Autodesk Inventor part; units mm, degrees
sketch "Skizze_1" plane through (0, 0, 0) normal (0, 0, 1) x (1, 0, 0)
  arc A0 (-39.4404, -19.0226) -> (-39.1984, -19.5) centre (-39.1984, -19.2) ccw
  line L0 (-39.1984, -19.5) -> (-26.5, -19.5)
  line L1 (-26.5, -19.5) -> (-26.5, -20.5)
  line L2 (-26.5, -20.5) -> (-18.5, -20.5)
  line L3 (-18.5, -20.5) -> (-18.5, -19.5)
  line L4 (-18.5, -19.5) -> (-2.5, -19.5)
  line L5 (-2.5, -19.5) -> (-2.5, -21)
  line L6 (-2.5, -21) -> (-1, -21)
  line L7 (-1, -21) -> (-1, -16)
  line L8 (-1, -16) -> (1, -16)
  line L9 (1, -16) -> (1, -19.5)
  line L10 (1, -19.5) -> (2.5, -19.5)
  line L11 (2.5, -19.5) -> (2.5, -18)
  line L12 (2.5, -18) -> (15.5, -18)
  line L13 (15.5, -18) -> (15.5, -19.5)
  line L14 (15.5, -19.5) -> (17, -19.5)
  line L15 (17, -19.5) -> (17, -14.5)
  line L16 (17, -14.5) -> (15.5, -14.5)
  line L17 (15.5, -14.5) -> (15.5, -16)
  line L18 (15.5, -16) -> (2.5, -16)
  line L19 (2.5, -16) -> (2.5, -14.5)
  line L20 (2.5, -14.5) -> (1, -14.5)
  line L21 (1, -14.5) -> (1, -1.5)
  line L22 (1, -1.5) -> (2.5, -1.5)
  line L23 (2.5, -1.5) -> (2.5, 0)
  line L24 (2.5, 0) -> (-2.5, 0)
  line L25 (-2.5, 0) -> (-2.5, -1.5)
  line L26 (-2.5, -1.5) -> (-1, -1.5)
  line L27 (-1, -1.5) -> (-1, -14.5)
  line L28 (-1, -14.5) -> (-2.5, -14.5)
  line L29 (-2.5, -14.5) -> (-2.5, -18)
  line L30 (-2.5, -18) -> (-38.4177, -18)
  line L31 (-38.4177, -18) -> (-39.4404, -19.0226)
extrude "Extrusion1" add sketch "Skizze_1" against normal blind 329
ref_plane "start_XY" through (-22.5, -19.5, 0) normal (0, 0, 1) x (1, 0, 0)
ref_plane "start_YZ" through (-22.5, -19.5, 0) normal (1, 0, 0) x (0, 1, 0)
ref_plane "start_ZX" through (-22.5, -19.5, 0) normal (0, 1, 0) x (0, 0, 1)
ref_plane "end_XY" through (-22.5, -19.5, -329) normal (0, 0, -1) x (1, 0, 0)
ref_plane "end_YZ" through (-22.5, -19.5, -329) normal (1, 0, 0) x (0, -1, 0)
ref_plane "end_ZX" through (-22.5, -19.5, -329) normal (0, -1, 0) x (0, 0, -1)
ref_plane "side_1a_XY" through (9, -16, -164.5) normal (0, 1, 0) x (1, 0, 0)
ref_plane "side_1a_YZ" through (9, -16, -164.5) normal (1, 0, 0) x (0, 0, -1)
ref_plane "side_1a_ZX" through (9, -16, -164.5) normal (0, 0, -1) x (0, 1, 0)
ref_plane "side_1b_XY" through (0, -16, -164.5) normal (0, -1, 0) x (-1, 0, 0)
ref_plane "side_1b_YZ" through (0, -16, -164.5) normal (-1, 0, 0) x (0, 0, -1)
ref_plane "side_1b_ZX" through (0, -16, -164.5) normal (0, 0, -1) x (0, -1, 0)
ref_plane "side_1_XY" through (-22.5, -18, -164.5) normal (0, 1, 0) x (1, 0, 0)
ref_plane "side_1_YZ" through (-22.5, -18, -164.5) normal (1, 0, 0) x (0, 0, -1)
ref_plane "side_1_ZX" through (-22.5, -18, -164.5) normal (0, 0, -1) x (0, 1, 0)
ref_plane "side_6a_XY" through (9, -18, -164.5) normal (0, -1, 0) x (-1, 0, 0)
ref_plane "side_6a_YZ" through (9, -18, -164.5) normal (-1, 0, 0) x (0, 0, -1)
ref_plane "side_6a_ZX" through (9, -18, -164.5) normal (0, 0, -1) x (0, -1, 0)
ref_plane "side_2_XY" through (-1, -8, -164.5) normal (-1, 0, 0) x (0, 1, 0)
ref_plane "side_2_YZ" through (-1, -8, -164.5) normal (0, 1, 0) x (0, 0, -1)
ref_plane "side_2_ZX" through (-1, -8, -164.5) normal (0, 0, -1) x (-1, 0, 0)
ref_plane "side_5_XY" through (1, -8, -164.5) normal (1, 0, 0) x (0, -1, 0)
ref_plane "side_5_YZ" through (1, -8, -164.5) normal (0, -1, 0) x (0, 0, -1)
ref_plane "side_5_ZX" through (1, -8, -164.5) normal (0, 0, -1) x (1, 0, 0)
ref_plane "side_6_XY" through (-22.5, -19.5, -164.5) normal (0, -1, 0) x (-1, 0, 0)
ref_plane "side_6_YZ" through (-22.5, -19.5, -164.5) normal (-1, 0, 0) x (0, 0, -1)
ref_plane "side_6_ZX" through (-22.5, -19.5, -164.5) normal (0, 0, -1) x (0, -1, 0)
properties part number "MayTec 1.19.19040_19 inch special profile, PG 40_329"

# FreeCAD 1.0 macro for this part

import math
import FreeCAD as App
import Part
import Sketcher
from FreeCAD import Vector

doc = App.newDocument("Part")
body = doc.addObject("PartDesign::Body", "Body")

# Sketch on XY plane
sketch1 = body.newObject("Sketcher::SketchObject", "Sketch")
sketch1.AttachmentSupport = (doc.getObject("XY_Plane"), [""])
sketch1.MapMode = "FlatFace"
sketch1.addGeometry(Part.LineSegment(Vector(-38.42, -18, 0), Vector(-39.44, -19.02, 0)), False)
sketch1.addGeometry(Part.ArcOfCircle(Part.Circle(Vector(-39.2, -19.2, 0), Vector(0, 0, 1), 0.3), math.radians(144), math.radians(270)), False)
sketch1.addGeometry(Part.LineSegment(Vector(-39.2, -19.5, 0), Vector(-26.5, -19.5, 0)), False)
sketch1.addGeometry(Part.LineSegment(Vector(-26.5, -19.5, 0), Vector(-26.5, -20.5, 0)), False)
sketch1.addGeometry(Part.LineSegment(Vector(-26.5, -20.5, 0), Vector(-18.5, -20.5, 0)), False)
sketch1.addGeometry(Part.LineSegment(Vector(-18.5, -20.5, 0), Vector(-18.5, -19.5, 0)), False)
sketch1.addGeometry(Part.LineSegment(Vector(-18.5, -19.5, 0), Vector(-2.5, -19.5, 0)), False)
sketch1.addGeometry(Part.LineSegment(Vector(-2.5, -19.5, 0), Vector(-2.5, -21, 0)), False)
sketch1.addGeometry(Part.LineSegment(Vector(-2.5, -21, 0), Vector(-1, -21, 0)), False)
sketch1.addGeometry(Part.LineSegment(Vector(-1, -21, 0), Vector(-1, -16, 0)), False)
sketch1.addGeometry(Part.LineSegment(Vector(-1, -16, 0), Vector(1, -16, 0)), False)
sketch1.addGeometry(Part.LineSegment(Vector(1, -16, 0), Vector(1, -19.5, 0)), False)
sketch1.addGeometry(Part.LineSegment(Vector(1, -19.5, 0), Vector(2.5, -19.5, 0)), False)
sketch1.addGeometry(Part.LineSegment(Vector(2.5, -19.5, 0), Vector(2.5, -18, 0)), False)
sketch1.addGeometry(Part.LineSegment(Vector(2.5, -18, 0), Vector(15.5, -18, 0)), False)
sketch1.addGeometry(Part.LineSegment(Vector(15.5, -18, 0), Vector(15.5, -19.5, 0)), False)
sketch1.addGeometry(Part.LineSegment(Vector(15.5, -19.5, 0), Vector(17, -19.5, 0)), False)
sketch1.addGeometry(Part.LineSegment(Vector(17, -19.5, 0), Vector(17, -14.5, 0)), False)
sketch1.addGeometry(Part.LineSegment(Vector(17, -14.5, 0), Vector(15.5, -14.5, 0)), False)
sketch1.addGeometry(Part.LineSegment(Vector(15.5, -14.5, 0), Vector(15.5, -16, 0)), False)
sketch1.addGeometry(Part.LineSegment(Vector(15.5, -16, 0), Vector(2.5, -16, 0)), False)
sketch1.addGeometry(Part.LineSegment(Vector(2.5, -16, 0), Vector(2.5, -14.5, 0)), False)
sketch1.addGeometry(Part.LineSegment(Vector(2.5, -14.5, 0), Vector(1, -14.5, 0)), False)
sketch1.addGeometry(Part.LineSegment(Vector(1, -14.5, 0), Vector(1, -1.5, 0)), False)
sketch1.addGeometry(Part.LineSegment(Vector(1, -1.5, 0), Vector(2.5, -1.5, 0)), False)
sketch1.addGeometry(Part.LineSegment(Vector(2.5, -1.5, 0), Vector(2.5, 0, 0)), False)
sketch1.addGeometry(Part.LineSegment(Vector(2.5, 0, 0), Vector(-2.5, 0, 0)), False)
sketch1.addGeometry(Part.LineSegment(Vector(-2.5, 0, 0), Vector(-2.5, -1.5, 0)), False)
sketch1.addGeometry(Part.LineSegment(Vector(-2.5, -1.5, 0), Vector(-1, -1.5, 0)), False)
sketch1.addGeometry(Part.LineSegment(Vector(-1, -1.5, 0), Vector(-1, -14.5, 0)), False)
sketch1.addGeometry(Part.LineSegment(Vector(-1, -14.5, 0), Vector(-2.5, -14.5, 0)), False)
sketch1.addGeometry(Part.LineSegment(Vector(-2.5, -14.5, 0), Vector(-2.5, -18, 0)), False)
sketch1.addGeometry(Part.LineSegment(Vector(-2.5, -18, 0), Vector(-38.42, -18, 0)), False)
sketch1.addConstraint(Sketcher.Constraint("Coincident", 0, 2, 1, 1))
sketch1.addConstraint(Sketcher.Constraint("Tangent", 1, 2, 2, 1))
sketch1.addConstraint(Sketcher.Constraint("Coincident", 2, 2, 3, 1))
sketch1.addConstraint(Sketcher.Constraint("Coincident", 3, 2, 4, 1))
sketch1.addConstraint(Sketcher.Constraint("Coincident", 4, 2, 5, 1))
sketch1.addConstraint(Sketcher.Constraint("Coincident", 5, 2, 6, 1))
sketch1.addConstraint(Sketcher.Constraint("Coincident", 6, 2, 7, 1))
sketch1.addConstraint(Sketcher.Constraint("Coincident", 7, 2, 8, 1))
sketch1.addConstraint(Sketcher.Constraint("Coincident", 8, 2, 9, 1))
sketch1.addConstraint(Sketcher.Constraint("Coincident", 9, 2, 10, 1))
sketch1.addConstraint(Sketcher.Constraint("Coincident", 10, 2, 11, 1))
sketch1.addConstraint(Sketcher.Constraint("Coincident", 11, 2, 12, 1))
sketch1.addConstraint(Sketcher.Constraint("Coincident", 12, 2, 13, 1))
sketch1.addConstraint(Sketcher.Constraint("Coincident", 13, 2, 14, 1))
sketch1.addConstraint(Sketcher.Constraint("Coincident", 14, 2, 15, 1))
sketch1.addConstraint(Sketcher.Constraint("Coincident", 15, 2, 16, 1))
sketch1.addConstraint(Sketcher.Constraint("Coincident", 16, 2, 17, 1))
sketch1.addConstraint(Sketcher.Constraint("Coincident", 17, 2, 18, 1))
sketch1.addConstraint(Sketcher.Constraint("Coincident", 18, 2, 19, 1))
sketch1.addConstraint(Sketcher.Constraint("Coincident", 19, 2, 20, 1))
sketch1.addConstraint(Sketcher.Constraint("Coincident", 20, 2, 21, 1))
sketch1.addConstraint(Sketcher.Constraint("Coincident", 21, 2, 22, 1))
sketch1.addConstraint(Sketcher.Constraint("Coincident", 22, 2, 23, 1))
sketch1.addConstraint(Sketcher.Constraint("Coincident", 23, 2, 24, 1))
sketch1.addConstraint(Sketcher.Constraint("Coincident", 24, 2, 25, 1))
sketch1.addConstraint(Sketcher.Constraint("Coincident", 25, 2, 26, 1))
sketch1.addConstraint(Sketcher.Constraint("Coincident", 26, 2, 27, 1))
sketch1.addConstraint(Sketcher.Constraint("Coincident", 27, 2, 28, 1))
sketch1.addConstraint(Sketcher.Constraint("Coincident", 28, 2, 29, 1))
sketch1.addConstraint(Sketcher.Constraint("Coincident", 29, 2, 30, 1))
sketch1.addConstraint(Sketcher.Constraint("Coincident", 30, 2, 31, 1))
sketch1.addConstraint(Sketcher.Constraint("Coincident", 31, 2, 32, 1))
sketch1.addConstraint(Sketcher.Constraint("Coincident", 32, 2, 0, 1))
sketch1.addConstraint(Sketcher.Constraint("Horizontal", 2))
sketch1.addConstraint(Sketcher.Constraint("Vertical", 3))
sketch1.addConstraint(Sketcher.Constraint("Horizontal", 4))
sketch1.addConstraint(Sketcher.Constraint("Vertical", 5))
sketch1.addConstraint(Sketcher.Constraint("Horizontal", 6))
sketch1.addConstraint(Sketcher.Constraint("Vertical", 7))
sketch1.addConstraint(Sketcher.Constraint("Horizontal", 8))
sketch1.addConstraint(Sketcher.Constraint("Vertical", 9))
sketch1.addConstraint(Sketcher.Constraint("Horizontal", 10))
sketch1.addConstraint(Sketcher.Constraint("Vertical", 11))
sketch1.addConstraint(Sketcher.Constraint("Horizontal", 12))
sketch1.addConstraint(Sketcher.Constraint("Vertical", 13))
sketch1.addConstraint(Sketcher.Constraint("Horizontal", 14))
sketch1.addConstraint(Sketcher.Constraint("Vertical", 15))
sketch1.addConstraint(Sketcher.Constraint("Horizontal", 16))
sketch1.addConstraint(Sketcher.Constraint("Vertical", 17))
sketch1.addConstraint(Sketcher.Constraint("Horizontal", 18))
sketch1.addConstraint(Sketcher.Constraint("Vertical", 19))
sketch1.addConstraint(Sketcher.Constraint("Horizontal", 20))
sketch1.addConstraint(Sketcher.Constraint("Vertical", 21))
sketch1.addConstraint(Sketcher.Constraint("Horizontal", 22))
sketch1.addConstraint(Sketcher.Constraint("Vertical", 23))
sketch1.addConstraint(Sketcher.Constraint("Horizontal", 24))
sketch1.addConstraint(Sketcher.Constraint("Vertical", 25))
sketch1.addConstraint(Sketcher.Constraint("Horizontal", 26))
sketch1.addConstraint(Sketcher.Constraint("Vertical", 27))
sketch1.addConstraint(Sketcher.Constraint("Horizontal", 28))
sketch1.addConstraint(Sketcher.Constraint("Vertical", 29))
sketch1.addConstraint(Sketcher.Constraint("Horizontal", 30))
sketch1.addConstraint(Sketcher.Constraint("Vertical", 31))
sketch1.addConstraint(Sketcher.Constraint("Horizontal", 32))
sketch1.addConstraint(Sketcher.Constraint("Symmetric", 25, 2, 26, 2, -1, 1))
sketch1.addConstraint(Sketcher.Constraint("Symmetric", 6, 2, 12, 2, -2))
sketch1.addConstraint(Sketcher.Constraint("Symmetric", 23, 2, 28, 2, -2))
sketch1.addConstraint(Sketcher.Constraint("Symmetric", 21, 2, 30, 2, -2))
sketch1.addConstraint(Sketcher.Constraint("Symmetric", 13, 2, 31, 2, -2))
sketch1.addConstraint(Sketcher.Constraint("Horizontal", 2, 2, 5, 2))
sketch1.addConstraint(Sketcher.Constraint("Horizontal", 12, 2, 15, 2))
sketch1.addConstraint(Sketcher.Constraint("Horizontal", 10, 2, 19, 2))
sketch1.addConstraint(Sketcher.Constraint("Horizontal", 18, 2, 21, 2))
sketch1.addConstraint(Sketcher.Constraint("Vertical", 15, 2, 18, 2))
sketch1.addConstraint(Sketcher.Constraint("Vertical", 11, 2, 22, 2))
sketch1.addConstraint(Sketcher.Constraint("Vertical", 21, 2, 24, 2))
sketch1.addConstraint(Sketcher.Constraint("Vertical", 9, 2, 28, 2))
sketch1.addConstraint(Sketcher.Constraint("Equal", 12, 16))
sketch1.addConstraint(Sketcher.Constraint("Equal", 30, 7))
sketch1.addConstraint(Sketcher.Constraint("Equal", 26, 9))
sketch1.addConstraint(Sketcher.Constraint("Equal", 7, 13))
sketch1.addConstraint(Sketcher.Constraint("Equal", 9, 17))
sketch1.addConstraint(Sketcher.Constraint("Equal", 20, 23))
sketch1.addConstraint(Sketcher.Constraint("Equal", 21, 25))
sketch1.addConstraint(Sketcher.Constraint("Radius", 1, 0.3))
sketch1.addConstraint(Sketcher.Constraint("DistanceX", 4, 1, 4, 2, 8.0))
sketch1.addConstraint(Sketcher.Constraint("DistanceX", 6, 1, 6, 2, 16.0))
sketch1.addConstraint(Sketcher.Constraint("DistanceX", 10, 1, 10, 2, 2.0))
sketch1.addConstraint(Sketcher.Constraint("DistanceX", 14, 1, 14, 2, 13.0))
sketch1.addConstraint(Sketcher.Constraint("DistanceX", 26, 2, 26, 1, 5.0))
sketch1.addConstraint(Sketcher.Constraint("DistanceY", 3, 2, 3, 1, 1.0))
sketch1.addConstraint(Sketcher.Constraint("DistanceX", 2, 1, 2, 2, 12.6984))
sketch1.addConstraint(Sketcher.Constraint("DistanceX", 32, 2, 32, 1, 35.9177))
sketch1.addConstraint(Sketcher.Constraint("DistanceX", 0, 2, 1, 3, 0.242))
pad1 = body.newObject("PartDesign::Pad", "Pad")
pad1.Profile = sketch1
pad1.Length = 329
pad1.Reversed = True

doc.recompute()
